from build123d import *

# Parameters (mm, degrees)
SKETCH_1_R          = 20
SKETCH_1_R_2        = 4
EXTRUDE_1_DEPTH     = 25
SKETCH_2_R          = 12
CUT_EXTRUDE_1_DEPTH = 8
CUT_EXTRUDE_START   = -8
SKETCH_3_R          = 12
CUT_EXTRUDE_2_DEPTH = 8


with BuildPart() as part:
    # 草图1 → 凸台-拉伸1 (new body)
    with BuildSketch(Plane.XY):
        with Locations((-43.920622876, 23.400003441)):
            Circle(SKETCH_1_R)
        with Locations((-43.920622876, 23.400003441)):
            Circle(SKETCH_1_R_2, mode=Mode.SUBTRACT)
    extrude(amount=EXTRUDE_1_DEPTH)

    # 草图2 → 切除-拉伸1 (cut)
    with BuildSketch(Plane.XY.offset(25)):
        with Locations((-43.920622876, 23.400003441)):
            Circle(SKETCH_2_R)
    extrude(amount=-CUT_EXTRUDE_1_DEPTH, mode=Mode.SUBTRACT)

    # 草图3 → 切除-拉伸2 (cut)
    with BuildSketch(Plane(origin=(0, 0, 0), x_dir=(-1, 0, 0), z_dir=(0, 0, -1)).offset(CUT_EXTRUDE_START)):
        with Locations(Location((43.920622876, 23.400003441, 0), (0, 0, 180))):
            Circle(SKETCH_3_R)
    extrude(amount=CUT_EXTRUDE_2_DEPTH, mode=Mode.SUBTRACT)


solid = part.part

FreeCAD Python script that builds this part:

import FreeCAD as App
import Part
import Sketcher

V = App.Vector
Q = App.Units.Quantity

doc = App.newDocument("Part")
body = doc.addObject("PartDesign::Body", "Body")

# Sketch on XY plane
sketch1 = body.newObject("Sketcher::SketchObject", "Sketch")
sketch1.AttachmentSupport = (doc.getObject("XY_Plane"), [""])
sketch1.MapMode = "FlatFace"
sketch1.addGeometry(Part.Circle(V(-43.9, 23.4, 0), V(0, 0, 1), 20), False)
sketch1.addGeometry(Part.Circle(V(-43.9, 23.4, 0), V(0, 0, 1), 4), False)
sketch1.addConstraint(Sketcher.Constraint("Coincident", 1, 3, 0, 3))
sketch1.addConstraint(Sketcher.Constraint("Diameter", 0, Q("40 mm")))
sketch1.addConstraint(Sketcher.Constraint("Diameter", 1, Q("8 mm")))
sketch1.addConstraint(Sketcher.Constraint("DistanceX", 0, 3, -1, 1, Q("43.920623 mm")))
sketch1.addConstraint(Sketcher.Constraint("DistanceY", -1, 1, 0, 3, Q("23.400003 mm")))
pad1 = body.newObject("PartDesign::Pad", "Pad")
pad1.Profile = sketch1
pad1.Length = 25

# Sketch on XY plane
sketch2 = body.newObject("Sketcher::SketchObject", "Sketch001")
sketch2.AttachmentSupport = (doc.getObject("XY_Plane"), [""])
sketch2.MapMode = "FlatFace"
sketch2.AttachmentOffset = App.Placement(V(0, 0, 25), App.Rotation())
sketch2.addGeometry(Part.Circle(V(-44, 23, 0), V(0, 0, 1), 12), False)
sketch2.addConstraint(Sketcher.Constraint("Diameter", 0, Q("24 mm")))
sketch2.addConstraint(Sketcher.Constraint("DistanceX", 0, 3, -1, 1, Q("43.920623 mm")))
sketch2.addConstraint(Sketcher.Constraint("DistanceY", -1, 1, 0, 3, Q("23.400003 mm")))
pocket1 = body.newObject("PartDesign::Pocket", "Pocket")
pocket1.Profile = sketch2
pocket1.Length = 8

# Sketch on XY plane
sketch3 = body.newObject("Sketcher::SketchObject", "Sketch002")
sketch3.AttachmentSupport = (doc.getObject("XY_Plane"), [""])
sketch3.MapMode = "FlatFace"
sketch3.AttachmentOffset = App.Placement(V(0, 0, 8), App.Rotation())
sketch3.addGeometry(Part.Circle(V(-44, 23, 0), V(0, 0, 1), 12), False)
sketch3.addConstraint(Sketcher.Constraint("Diameter", 0, Q("24 mm")))
sketch3.addConstraint(Sketcher.Constraint("DistanceX", 0, 3, -1, 1, Q("43.920623 mm")))
sketch3.addConstraint(Sketcher.Constraint("DistanceY", -1, 1, 0, 3, Q("23.400003 mm")))
pocket2 = body.newObject("PartDesign::Pocket", "Pocket001")
pocket2.Profile = sketch3
pocket2.Length = 8

doc.recompute()
